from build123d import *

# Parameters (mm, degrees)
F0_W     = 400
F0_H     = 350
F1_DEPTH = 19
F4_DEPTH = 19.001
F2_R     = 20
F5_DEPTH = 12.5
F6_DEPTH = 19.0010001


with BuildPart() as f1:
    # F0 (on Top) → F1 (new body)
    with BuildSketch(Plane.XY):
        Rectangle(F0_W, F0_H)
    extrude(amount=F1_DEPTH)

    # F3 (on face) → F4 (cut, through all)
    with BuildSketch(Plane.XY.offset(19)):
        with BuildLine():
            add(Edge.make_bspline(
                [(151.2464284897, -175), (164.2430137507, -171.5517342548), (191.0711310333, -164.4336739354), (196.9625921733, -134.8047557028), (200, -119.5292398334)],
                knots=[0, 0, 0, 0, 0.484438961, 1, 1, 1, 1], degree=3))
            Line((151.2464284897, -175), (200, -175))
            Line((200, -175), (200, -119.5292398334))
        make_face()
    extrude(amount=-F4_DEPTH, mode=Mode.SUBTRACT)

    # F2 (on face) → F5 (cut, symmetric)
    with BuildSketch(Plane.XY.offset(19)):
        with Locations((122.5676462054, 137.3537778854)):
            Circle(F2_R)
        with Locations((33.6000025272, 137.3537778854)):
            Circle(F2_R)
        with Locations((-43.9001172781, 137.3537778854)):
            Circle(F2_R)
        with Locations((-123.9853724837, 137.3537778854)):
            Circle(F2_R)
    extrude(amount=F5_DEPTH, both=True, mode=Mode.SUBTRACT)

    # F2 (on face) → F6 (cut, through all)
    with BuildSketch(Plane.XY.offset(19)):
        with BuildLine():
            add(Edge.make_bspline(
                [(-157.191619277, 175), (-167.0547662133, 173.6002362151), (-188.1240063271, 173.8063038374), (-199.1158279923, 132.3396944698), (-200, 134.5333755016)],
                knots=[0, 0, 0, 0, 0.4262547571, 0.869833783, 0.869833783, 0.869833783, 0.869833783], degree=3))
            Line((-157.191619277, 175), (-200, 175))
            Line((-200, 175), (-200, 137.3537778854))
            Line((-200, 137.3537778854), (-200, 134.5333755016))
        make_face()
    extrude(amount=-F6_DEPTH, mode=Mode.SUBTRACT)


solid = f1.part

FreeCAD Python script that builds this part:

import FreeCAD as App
import Part
import Sketcher
from FreeCAD import Vector
Q = App.Units.Quantity

doc = App.newDocument("Part")
body = doc.addObject("PartDesign::Body", "Body")

sketch1 = doc.addObject("Sketcher::SketchObject", "Sketch")
body.addObject(sketch1)
sketch1.AttachmentSupport = (doc.XY_Plane, [""])
sketch1.MapMode = "FlatFace"
sketch1.addGeometry([
    Part.LineSegment(Vector(-200, 175, 0), Vector(-200, -175, 0)),
    Part.LineSegment(Vector(-200, -175, 0), Vector(200, -175, 0)),
    Part.LineSegment(Vector(200, -175, 0), Vector(200, 175, 0)),
    Part.LineSegment(Vector(200, 175, 0), Vector(-200, 175, 0)),
], False)
sketch1.addConstraint([
    Sketcher.Constraint("Coincident", 0, 2, 1, 1),
    Sketcher.Constraint("Coincident", 1, 2, 2, 1),
    Sketcher.Constraint("Coincident", 2, 2, 3, 1),
    Sketcher.Constraint("Coincident", 3, 2, 0, 1),
    Sketcher.Constraint("Vertical", 0),
    Sketcher.Constraint("Horizontal", 1),
    Sketcher.Constraint("Vertical", 2),
    Sketcher.Constraint("Horizontal", 3),
    Sketcher.Constraint("Symmetric", 0, 2, 2, 2, -1, 1),
    Sketcher.Constraint("DistanceX", 1, 1, 1, 2, Q("400 mm")),
    Sketcher.Constraint("DistanceY", 0, 2, 0, 1, Q("350 mm")),
])
pad1 = doc.addObject("PartDesign::Pad", "Pad")
body.addObject(pad1)
pad1.Profile = sketch1
pad1.Length = 19

sketch2 = doc.addObject("Sketcher::SketchObject", "Sketch001")
body.addObject(sketch2)
sketch2.AttachmentSupport = (doc.XY_Plane, [""])
sketch2.MapMode = "FlatFace"
sketch2.AttachmentOffset = App.Placement(Vector(0, 0, 19), App.Rotation())
sketch2.addGeometry([
    Part.BSplineCurve([Vector(151.246428, -175, 0), Vector(164.243014, -171.551734, 0), Vector(191.071131, -164.433674, 0), Vector(196.962592, -134.804756, 0), Vector(200, -119.52924, 0)], [4, 1, 4], [0, 0.484438961, 1], False, 3, [1, 1, 1, 1, 1], False),
    Part.LineSegment(Vector(151.246428, -175, 0), Vector(200, -175, 0)),
    Part.LineSegment(Vector(200, -175, 0), Vector(200, -119.52924, 0)),
], False)
sketch2.addConstraint([
    Sketcher.Constraint("Block", 0),
    Sketcher.Constraint("Coincident", 0, 1, 1, 1),
    Sketcher.Constraint("Coincident", 1, 2, 2, 1),
    Sketcher.Constraint("Coincident", 2, 2, 0, 2),
    Sketcher.Constraint("Horizontal", 1),
    Sketcher.Constraint("Vertical", 2),
])
pocket1 = doc.addObject("PartDesign::Pocket", "Pocket")
body.addObject(pocket1)
pocket1.Profile = sketch2
pocket1.Type = "ThroughAll"

sketch3 = doc.addObject("Sketcher::SketchObject", "Sketch002")
body.addObject(sketch3)
sketch3.AttachmentSupport = (doc.XY_Plane, [""])
sketch3.MapMode = "FlatFace"
sketch3.AttachmentOffset = App.Placement(Vector(0, 0, 19), App.Rotation())
sketch3.addGeometry([
    Part.Circle(Vector(123, 137, 0), Vector(0, 0, 1), 20),
    Part.Circle(Vector(34, 137, 0), Vector(0, 0, 1), 20),
    Part.Circle(Vector(-44, 137, 0), Vector(0, 0, 1), 20),
    Part.Circle(Vector(-124, 137, 0), Vector(0, 0, 1), 20),
], False)
sketch3.addConstraint([
    Sketcher.Constraint("Equal", 0, 1),
    Sketcher.Constraint("Equal", 1, 2),
    Sketcher.Constraint("Equal", 2, 3),
    Sketcher.Constraint("Horizontal", 0, 3, 1, 3),
    Sketcher.Constraint("Horizontal", 1, 3, 2, 3),
    Sketcher.Constraint("Horizontal", 2, 3, 3, 3),
    Sketcher.Constraint("Diameter", 0, Q("40 mm")),
    Sketcher.Constraint("DistanceX", 2, 3, 1, 3, Q("77.50012 mm")),
    Sketcher.Constraint("DistanceX", 3, 3, 0, 3, Q("246.553019 mm")),
    Sketcher.Constraint("DistanceX", -1, 1, 0, 3, Q("122.567646 mm")),
    Sketcher.Constraint("DistanceY", -1, 1, 0, 3, Q("137.353778 mm")),
    Sketcher.Constraint("DistanceX", -1, 1, 1, 3, Q("33.600003 mm")),
])
pocket2 = doc.addObject("PartDesign::Pocket", "Pocket001")
body.addObject(pocket2)
pocket2.Profile = sketch3
pocket2.Length = 25
pocket2.Midplane = True

sketch4 = doc.addObject("Sketcher::SketchObject", "Sketch003")
body.addObject(sketch4)
sketch4.AttachmentSupport = (doc.XY_Plane, [""])
sketch4.MapMode = "FlatFace"
sketch4.AttachmentOffset = App.Placement(Vector(0, 0, 19), App.Rotation())
sketch4.addGeometry([
    Part.BSplineCurve([Vector(-157.191619, 175, 0), Vector(-167.054766, 173.600236, 0), Vector(-188.124006, 173.806304, 0), Vector(-199.115828, 132.339694, 0), Vector(-200, 134.533376, 0)], [4, 1, 4], [0, 0.426254757, 0.869833783], False, 3, [1, 1, 1, 1, 1], False),
    Part.LineSegment(Vector(-157.191619, 175, 0), Vector(-200, 175, 0)),
    Part.LineSegment(Vector(-200, 175, 0), Vector(-200, 134.533376, 0)),
], False)
sketch4.addConstraint([
    Sketcher.Constraint("Block", 0),
    Sketcher.Constraint("Coincident", 0, 1, 1, 1),
    Sketcher.Constraint("Coincident", 1, 2, 2, 1),
    Sketcher.Constraint("Coincident", 2, 2, 0, 2),
    Sketcher.Constraint("Horizontal", 1),
    Sketcher.Constraint("Vertical", 2),
])
pocket3 = doc.addObject("PartDesign::Pocket", "Pocket002")
body.addObject(pocket3)
pocket3.Profile = sketch4
pocket3.Type = "ThroughAll"

doc.recompute()
